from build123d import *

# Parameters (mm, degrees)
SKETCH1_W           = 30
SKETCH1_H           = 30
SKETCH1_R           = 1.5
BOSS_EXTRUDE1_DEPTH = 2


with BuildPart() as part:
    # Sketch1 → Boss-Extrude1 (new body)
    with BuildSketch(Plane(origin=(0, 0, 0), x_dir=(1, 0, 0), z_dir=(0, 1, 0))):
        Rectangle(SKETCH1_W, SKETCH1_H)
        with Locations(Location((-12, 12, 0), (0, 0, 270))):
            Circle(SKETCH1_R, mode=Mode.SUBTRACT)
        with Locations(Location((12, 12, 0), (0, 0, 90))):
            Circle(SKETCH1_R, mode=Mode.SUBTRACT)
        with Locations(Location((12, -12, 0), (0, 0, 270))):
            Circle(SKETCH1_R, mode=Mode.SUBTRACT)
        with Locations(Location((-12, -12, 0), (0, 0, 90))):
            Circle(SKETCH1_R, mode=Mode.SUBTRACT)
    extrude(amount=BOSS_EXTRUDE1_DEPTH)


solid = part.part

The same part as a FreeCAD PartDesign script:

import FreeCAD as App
import Part
import Sketcher
from FreeCAD import Vector
Q = App.Units.Quantity

doc = App.newDocument("Part")
body = doc.addObject("PartDesign::Body", "Body")

# Sketch on XZ plane
sketch1 = body.newObject("Sketcher::SketchObject", "Sketch")
sketch1.AttachmentSupport = (doc.getObject("XZ_Plane"), [""])
sketch1.MapMode = "FlatFace"
sketch1.addGeometry([
    Part.LineSegment(Vector(-15, -15, 0), Vector(-15, 15, 0)),  # 0
    Part.LineSegment(Vector(-15, 15, 0), Vector(15, 15, 0)),  # 1
    Part.LineSegment(Vector(15, 15, 0), Vector(15, -15, 0)),  # 2
    Part.LineSegment(Vector(15, -15, 0), Vector(-15, -15, 0)),  # 3
    Part.Circle(Vector(-12, 12, 0), Vector(0, 0, 1), 1.5),  # 4
    Part.Circle(Vector(12, 12, 0), Vector(0, 0, 1), 1.5),  # 5
    Part.Circle(Vector(-12, -12, 0), Vector(0, 0, 1), 1.5),  # 6
    Part.Circle(Vector(12, -12, 0), Vector(0, 0, 1), 1.5),  # 7
], False)
sketch1.addConstraint([
    Sketcher.Constraint("Coincident", 0, 2, 1, 1),
    Sketcher.Constraint("Coincident", 1, 2, 2, 1),
    Sketcher.Constraint("Coincident", 2, 2, 3, 1),
    Sketcher.Constraint("Coincident", 3, 2, 0, 1),
    Sketcher.Constraint("Vertical", 0),
    Sketcher.Constraint("Horizontal", 1),
    Sketcher.Constraint("Vertical", 2),
    Sketcher.Constraint("Horizontal", 3),
    Sketcher.Constraint("Equal", 4, 5),
    Sketcher.Constraint("Equal", 5, 6),
    Sketcher.Constraint("Equal", 6, 7),
    Sketcher.Constraint("Symmetric", 5, 3, 6, 3, -1, 1),
    Sketcher.Constraint("Symmetric", 4, 3, 7, 3, -1, 1),
    Sketcher.Constraint("Symmetric", 0, 2, 2, 2, -1, 1),
    Sketcher.Constraint("Symmetric", 4, 3, 5, 3, -2),
    Sketcher.Constraint("Equal", 3, 0),
    Sketcher.Constraint("Diameter", 4, Q("3 mm")),
    Sketcher.Constraint("DistanceX", 1, 1, 1, 2, Q("30 mm")),
    Sketcher.Constraint("DistanceX", 4, 3, -1, 1, Q("12 mm")),
    Sketcher.Constraint("DistanceY", -1, 1, 4, 3, Q("12 mm")),
])
pad1 = body.newObject("PartDesign::Pad", "Pad")
pad1.Profile = sketch1
pad1.Length = 2
pad1.Reversed = True

doc.recompute()
